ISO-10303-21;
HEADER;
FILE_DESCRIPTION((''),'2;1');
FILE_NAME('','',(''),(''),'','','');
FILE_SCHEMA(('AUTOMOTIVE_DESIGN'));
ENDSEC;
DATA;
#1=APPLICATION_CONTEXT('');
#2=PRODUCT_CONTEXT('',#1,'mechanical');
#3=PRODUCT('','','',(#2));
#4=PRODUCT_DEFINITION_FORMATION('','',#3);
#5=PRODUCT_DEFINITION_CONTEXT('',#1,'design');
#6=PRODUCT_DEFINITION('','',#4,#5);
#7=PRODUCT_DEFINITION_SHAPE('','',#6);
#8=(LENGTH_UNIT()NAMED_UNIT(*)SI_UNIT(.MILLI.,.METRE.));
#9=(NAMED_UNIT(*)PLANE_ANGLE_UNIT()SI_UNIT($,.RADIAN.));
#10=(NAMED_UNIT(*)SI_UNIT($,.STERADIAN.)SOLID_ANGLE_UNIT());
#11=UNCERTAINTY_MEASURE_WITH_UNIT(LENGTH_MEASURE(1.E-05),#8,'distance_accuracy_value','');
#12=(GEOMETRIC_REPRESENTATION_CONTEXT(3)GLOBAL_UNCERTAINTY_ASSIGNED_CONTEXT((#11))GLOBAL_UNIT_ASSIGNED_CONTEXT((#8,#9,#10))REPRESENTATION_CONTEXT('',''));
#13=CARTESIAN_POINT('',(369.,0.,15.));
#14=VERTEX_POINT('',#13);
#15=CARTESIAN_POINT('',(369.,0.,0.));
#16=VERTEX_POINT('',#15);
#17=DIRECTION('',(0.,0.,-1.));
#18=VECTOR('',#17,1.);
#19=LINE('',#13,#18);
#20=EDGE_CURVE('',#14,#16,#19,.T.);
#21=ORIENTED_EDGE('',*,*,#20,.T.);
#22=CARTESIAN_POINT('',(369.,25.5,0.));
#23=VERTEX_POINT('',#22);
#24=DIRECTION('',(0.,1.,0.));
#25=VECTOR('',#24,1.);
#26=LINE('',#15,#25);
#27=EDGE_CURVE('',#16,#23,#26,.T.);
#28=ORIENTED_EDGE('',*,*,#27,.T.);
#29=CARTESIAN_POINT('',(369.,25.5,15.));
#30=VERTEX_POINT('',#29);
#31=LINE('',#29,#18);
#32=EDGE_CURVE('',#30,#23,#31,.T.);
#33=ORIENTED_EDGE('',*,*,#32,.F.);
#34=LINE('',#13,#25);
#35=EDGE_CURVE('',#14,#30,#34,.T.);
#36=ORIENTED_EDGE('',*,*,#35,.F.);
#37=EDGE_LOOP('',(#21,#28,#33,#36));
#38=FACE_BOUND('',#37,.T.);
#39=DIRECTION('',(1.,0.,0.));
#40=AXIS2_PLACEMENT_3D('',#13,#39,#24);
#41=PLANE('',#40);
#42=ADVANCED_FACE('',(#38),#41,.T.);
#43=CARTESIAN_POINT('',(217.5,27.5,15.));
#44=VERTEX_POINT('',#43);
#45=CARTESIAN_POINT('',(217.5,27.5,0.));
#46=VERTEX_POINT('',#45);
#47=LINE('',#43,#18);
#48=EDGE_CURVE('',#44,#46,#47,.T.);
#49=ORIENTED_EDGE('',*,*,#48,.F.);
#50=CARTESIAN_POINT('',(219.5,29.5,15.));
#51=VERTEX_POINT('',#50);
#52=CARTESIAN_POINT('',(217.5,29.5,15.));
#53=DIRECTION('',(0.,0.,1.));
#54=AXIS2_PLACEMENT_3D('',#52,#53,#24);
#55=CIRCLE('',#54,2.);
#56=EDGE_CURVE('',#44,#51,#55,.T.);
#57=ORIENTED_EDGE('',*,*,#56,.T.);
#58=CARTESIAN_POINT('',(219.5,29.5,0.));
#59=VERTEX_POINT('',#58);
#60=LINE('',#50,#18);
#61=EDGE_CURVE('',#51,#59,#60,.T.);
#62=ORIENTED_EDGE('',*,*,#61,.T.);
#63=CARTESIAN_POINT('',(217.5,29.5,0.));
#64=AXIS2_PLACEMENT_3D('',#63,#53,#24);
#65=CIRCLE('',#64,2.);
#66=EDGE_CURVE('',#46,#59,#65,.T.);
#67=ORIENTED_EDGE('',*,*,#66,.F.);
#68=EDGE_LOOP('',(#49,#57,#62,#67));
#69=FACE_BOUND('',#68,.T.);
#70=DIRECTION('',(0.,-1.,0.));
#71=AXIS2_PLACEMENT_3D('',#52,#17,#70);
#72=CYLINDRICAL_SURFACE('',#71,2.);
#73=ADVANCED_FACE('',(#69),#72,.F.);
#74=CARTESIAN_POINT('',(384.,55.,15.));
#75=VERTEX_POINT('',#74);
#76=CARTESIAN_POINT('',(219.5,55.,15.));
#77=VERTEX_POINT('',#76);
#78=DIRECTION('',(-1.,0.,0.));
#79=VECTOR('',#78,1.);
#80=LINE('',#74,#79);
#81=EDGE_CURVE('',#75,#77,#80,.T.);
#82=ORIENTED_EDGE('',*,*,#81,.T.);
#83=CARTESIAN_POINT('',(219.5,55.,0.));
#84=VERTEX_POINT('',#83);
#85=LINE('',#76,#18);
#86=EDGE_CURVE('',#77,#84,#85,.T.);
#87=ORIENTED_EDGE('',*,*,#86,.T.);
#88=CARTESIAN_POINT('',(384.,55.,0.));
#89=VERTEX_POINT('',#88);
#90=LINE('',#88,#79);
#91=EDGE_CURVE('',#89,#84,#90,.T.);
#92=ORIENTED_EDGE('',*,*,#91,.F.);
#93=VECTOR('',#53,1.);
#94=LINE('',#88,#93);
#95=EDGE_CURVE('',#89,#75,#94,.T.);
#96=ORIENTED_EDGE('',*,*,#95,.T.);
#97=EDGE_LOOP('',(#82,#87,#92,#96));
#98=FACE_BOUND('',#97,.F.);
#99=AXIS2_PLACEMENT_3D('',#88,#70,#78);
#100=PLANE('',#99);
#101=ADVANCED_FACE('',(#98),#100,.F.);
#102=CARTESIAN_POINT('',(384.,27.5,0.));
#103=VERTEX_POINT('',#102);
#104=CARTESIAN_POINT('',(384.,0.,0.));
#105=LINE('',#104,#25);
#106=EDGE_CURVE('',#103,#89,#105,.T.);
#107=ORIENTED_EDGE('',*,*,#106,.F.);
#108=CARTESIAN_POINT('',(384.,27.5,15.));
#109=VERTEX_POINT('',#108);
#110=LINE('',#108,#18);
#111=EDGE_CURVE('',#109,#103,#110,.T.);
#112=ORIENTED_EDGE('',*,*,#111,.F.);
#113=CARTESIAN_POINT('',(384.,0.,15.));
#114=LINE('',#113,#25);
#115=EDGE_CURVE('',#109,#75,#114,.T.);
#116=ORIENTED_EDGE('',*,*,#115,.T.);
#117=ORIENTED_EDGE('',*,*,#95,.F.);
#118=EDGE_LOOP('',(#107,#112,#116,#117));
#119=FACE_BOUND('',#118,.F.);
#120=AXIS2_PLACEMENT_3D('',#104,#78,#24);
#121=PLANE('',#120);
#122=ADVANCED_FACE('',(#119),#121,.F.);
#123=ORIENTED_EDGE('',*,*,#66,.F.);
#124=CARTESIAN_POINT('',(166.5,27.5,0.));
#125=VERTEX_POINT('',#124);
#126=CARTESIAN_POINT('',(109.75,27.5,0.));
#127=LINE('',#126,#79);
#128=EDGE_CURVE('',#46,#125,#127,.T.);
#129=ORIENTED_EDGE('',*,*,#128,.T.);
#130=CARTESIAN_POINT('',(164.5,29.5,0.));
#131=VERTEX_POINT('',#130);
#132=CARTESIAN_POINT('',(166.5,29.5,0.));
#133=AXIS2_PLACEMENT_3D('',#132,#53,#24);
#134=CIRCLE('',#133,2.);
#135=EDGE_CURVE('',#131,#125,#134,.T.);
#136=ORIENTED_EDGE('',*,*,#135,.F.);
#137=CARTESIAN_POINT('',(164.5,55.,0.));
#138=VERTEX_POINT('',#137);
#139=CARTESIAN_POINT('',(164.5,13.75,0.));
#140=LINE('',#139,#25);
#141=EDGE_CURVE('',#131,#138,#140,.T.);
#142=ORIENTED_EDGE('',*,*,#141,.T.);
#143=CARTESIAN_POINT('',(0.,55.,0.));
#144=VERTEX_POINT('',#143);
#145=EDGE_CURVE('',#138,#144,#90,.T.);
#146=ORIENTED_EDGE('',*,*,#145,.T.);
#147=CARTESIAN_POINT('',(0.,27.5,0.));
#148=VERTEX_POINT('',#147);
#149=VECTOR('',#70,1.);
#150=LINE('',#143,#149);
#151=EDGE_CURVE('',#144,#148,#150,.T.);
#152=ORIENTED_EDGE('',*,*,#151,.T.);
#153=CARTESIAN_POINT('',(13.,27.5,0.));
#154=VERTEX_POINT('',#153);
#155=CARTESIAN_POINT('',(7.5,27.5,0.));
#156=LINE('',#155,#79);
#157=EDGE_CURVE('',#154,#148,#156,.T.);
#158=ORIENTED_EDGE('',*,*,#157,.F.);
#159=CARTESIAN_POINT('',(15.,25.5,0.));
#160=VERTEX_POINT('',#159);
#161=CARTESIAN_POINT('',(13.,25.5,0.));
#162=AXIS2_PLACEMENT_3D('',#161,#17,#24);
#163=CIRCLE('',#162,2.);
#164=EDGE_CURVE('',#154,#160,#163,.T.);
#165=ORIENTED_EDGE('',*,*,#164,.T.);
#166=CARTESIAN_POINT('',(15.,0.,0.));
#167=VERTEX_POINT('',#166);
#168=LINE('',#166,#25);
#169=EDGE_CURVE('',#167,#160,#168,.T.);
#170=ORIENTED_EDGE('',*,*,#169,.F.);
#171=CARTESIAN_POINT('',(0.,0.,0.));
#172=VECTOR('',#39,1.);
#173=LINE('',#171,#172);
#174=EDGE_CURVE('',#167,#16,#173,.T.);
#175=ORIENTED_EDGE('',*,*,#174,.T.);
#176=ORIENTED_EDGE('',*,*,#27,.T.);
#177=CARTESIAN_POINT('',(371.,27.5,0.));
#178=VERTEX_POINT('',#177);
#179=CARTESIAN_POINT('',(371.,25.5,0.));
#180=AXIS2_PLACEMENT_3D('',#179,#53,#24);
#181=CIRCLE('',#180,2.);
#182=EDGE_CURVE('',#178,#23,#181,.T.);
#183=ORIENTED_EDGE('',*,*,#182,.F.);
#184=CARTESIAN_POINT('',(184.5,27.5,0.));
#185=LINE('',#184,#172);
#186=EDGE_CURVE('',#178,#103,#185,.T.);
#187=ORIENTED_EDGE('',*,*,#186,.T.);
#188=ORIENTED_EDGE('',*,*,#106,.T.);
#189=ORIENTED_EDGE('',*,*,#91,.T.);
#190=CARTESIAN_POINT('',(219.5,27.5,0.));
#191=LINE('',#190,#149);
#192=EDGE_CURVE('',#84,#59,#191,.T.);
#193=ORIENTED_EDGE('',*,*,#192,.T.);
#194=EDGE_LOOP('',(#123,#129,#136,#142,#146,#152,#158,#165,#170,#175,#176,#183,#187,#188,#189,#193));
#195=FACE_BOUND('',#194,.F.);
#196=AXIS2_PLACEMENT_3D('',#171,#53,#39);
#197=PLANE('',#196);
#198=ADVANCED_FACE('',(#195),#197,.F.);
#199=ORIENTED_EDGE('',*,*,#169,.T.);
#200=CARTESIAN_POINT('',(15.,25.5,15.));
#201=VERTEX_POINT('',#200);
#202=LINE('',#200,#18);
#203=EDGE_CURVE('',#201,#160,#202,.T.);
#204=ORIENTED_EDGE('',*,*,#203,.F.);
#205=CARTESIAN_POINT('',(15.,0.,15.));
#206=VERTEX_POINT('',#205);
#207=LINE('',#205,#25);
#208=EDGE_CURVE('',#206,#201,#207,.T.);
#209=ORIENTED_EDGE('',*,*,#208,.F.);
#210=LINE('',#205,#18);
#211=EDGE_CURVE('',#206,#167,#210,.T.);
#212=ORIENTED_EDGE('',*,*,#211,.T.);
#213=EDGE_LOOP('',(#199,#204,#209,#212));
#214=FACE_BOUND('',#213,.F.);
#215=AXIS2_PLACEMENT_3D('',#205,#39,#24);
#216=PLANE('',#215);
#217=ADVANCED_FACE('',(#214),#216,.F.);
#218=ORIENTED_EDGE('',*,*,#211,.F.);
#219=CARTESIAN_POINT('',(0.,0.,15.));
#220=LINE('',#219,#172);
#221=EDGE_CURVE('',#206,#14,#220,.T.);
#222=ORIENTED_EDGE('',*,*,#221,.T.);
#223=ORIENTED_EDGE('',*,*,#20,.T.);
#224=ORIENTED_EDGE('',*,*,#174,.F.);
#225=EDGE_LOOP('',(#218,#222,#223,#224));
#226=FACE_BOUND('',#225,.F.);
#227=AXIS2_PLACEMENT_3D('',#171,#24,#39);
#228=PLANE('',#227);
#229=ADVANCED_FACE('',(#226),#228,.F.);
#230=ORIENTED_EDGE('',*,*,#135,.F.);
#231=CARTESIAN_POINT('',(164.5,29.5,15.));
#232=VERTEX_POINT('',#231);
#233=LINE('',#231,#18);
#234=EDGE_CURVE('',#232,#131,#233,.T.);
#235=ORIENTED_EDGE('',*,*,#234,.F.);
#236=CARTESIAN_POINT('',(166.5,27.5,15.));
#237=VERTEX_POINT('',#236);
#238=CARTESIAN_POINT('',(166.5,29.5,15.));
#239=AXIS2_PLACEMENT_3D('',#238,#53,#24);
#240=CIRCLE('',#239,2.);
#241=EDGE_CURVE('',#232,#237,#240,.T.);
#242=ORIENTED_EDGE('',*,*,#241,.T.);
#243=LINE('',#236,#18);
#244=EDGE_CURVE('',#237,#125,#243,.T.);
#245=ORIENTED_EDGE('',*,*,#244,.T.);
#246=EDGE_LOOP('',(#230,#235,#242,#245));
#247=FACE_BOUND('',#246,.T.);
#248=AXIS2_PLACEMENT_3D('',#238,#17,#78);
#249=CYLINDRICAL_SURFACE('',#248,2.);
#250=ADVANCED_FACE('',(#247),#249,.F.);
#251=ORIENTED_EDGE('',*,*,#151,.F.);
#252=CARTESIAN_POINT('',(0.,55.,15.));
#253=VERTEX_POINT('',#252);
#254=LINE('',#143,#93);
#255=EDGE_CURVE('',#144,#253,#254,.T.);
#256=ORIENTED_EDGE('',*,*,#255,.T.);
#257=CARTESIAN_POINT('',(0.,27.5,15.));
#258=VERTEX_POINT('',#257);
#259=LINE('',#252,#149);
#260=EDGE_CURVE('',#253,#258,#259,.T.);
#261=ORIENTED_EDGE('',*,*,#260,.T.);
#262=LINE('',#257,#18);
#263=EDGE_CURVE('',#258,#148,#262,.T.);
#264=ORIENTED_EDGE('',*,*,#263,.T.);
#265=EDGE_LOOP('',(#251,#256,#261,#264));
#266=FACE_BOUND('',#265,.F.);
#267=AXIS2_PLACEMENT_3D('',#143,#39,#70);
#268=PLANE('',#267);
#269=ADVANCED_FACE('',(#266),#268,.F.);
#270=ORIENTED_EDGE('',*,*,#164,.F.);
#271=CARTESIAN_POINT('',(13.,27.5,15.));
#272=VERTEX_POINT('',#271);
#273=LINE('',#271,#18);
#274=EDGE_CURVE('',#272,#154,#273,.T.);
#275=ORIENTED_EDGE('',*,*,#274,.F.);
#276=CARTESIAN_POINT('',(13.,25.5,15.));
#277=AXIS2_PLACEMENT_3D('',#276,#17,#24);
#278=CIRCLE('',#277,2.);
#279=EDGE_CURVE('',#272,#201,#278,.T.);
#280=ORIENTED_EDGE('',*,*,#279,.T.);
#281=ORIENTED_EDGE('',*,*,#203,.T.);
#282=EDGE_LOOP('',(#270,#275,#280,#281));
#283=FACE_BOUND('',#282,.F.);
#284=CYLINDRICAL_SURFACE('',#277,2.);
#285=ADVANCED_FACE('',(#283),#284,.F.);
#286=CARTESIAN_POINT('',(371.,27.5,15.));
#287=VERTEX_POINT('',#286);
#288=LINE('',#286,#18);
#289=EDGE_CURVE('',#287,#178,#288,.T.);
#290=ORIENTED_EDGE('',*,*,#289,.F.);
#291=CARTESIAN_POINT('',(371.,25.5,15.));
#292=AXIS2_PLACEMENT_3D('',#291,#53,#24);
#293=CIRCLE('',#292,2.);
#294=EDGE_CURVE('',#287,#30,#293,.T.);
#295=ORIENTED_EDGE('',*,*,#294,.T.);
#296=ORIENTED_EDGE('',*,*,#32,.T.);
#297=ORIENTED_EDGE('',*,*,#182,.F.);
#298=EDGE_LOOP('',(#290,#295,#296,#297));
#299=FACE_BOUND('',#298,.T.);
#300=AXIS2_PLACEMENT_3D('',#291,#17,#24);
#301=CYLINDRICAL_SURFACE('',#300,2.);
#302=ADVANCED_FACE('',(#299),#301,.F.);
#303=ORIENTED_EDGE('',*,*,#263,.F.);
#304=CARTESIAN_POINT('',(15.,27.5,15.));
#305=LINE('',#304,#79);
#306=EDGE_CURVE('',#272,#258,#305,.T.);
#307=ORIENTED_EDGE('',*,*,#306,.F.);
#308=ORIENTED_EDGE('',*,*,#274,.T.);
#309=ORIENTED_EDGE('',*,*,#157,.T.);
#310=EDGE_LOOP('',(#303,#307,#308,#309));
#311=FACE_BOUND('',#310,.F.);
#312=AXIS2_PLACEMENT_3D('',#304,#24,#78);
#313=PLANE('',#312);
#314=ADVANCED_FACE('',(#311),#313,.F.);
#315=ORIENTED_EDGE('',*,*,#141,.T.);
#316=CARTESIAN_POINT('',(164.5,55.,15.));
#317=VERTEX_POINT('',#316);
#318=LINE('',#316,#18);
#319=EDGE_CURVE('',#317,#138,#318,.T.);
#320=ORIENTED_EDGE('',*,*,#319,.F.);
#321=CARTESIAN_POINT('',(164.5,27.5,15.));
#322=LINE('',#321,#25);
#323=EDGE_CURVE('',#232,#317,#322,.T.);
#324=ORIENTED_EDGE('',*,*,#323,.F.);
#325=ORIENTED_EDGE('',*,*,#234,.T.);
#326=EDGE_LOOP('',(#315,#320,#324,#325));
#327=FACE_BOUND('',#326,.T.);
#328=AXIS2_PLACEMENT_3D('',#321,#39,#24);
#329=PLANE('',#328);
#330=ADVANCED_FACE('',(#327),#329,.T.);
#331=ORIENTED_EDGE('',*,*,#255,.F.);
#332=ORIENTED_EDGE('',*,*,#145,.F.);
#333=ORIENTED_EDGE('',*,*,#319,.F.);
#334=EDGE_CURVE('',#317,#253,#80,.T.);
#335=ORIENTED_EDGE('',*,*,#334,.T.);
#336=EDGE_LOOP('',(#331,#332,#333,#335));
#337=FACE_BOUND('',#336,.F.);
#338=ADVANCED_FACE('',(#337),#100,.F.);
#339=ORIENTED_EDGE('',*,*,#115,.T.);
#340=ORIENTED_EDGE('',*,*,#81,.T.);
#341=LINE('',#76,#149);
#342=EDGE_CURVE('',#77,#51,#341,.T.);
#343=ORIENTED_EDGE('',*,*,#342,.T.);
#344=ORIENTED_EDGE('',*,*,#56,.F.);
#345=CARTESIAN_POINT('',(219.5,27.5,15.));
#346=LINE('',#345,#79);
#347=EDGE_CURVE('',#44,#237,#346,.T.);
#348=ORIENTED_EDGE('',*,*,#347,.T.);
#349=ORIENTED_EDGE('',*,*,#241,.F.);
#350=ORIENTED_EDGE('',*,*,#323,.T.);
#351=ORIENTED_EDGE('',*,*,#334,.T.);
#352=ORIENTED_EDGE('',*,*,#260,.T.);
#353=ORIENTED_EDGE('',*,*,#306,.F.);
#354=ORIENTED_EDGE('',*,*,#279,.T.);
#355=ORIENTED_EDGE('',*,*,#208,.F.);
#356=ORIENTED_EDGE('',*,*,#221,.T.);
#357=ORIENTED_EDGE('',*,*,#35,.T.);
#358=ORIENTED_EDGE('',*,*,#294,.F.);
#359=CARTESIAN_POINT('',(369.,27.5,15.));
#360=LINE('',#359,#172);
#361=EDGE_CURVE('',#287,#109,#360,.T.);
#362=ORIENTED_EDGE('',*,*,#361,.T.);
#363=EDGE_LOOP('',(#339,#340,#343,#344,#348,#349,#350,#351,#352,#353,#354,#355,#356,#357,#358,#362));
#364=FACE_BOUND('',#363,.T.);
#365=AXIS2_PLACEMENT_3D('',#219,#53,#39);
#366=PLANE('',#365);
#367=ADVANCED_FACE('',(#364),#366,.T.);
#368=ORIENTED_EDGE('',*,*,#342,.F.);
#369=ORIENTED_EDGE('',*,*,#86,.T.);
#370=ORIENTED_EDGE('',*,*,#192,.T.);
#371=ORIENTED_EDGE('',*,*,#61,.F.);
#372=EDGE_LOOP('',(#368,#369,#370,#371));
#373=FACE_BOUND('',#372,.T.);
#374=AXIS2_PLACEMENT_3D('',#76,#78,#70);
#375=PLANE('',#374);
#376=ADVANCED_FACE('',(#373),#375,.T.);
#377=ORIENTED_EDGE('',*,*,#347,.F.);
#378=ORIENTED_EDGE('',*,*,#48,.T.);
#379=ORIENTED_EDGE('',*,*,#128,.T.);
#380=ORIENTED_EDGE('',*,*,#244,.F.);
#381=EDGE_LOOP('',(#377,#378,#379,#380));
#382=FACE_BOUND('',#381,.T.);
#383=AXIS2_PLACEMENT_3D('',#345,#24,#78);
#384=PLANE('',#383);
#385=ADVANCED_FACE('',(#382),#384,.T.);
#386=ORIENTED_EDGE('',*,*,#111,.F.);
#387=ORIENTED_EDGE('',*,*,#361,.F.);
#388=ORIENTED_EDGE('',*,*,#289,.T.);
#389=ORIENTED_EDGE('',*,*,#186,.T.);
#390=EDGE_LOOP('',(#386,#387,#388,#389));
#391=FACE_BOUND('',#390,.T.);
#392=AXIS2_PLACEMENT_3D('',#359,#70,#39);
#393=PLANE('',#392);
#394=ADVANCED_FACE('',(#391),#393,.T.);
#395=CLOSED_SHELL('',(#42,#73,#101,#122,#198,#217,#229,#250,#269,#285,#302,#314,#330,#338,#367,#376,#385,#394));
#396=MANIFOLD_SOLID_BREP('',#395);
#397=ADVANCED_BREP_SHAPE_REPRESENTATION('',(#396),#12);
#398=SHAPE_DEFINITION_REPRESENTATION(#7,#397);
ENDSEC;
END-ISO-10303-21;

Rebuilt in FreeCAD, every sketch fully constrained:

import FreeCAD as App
import Part
import Sketcher


def edges_at(feature, points):
    """Names of the edges that pass closest to the given points."""
    edges = feature.Shape.Edges
    near = lambda p: min(range(len(edges)), key=lambda i: edges[i].distToShape(Part.Vertex(*p))[0])
    return sorted({f"Edge{near(p) + 1}" for p in points})


def add_polygon(sketch, points):
    """Adds a closed chain of lines whose ends are joined by coincident constraints."""
    first, n = sketch.GeometryCount, len(points)
    for a, b in zip(points, points[1:] + points[:1]):
        sketch.addGeometry(Part.LineSegment(App.Vector(*a, 0), App.Vector(*b, 0)), False)
    for i in range(n):
        sketch.addConstraint(Sketcher.Constraint("Coincident", first + i, 2, first + (i + 1) % n, 1))

doc = App.newDocument("Part")
body = doc.addObject("PartDesign::Body", "Body")

# Sketch on XY plane
sketch1 = body.newObject("Sketcher::SketchObject", "Sketch")
sketch1.AttachmentSupport = (doc.getObject("XY_Plane"), [""])
sketch1.MapMode = "FlatFace"
add_polygon(sketch1, [(0, 55), (0, 0), (384, 0), (384, 55)])  # lines 0-3
sketch1.addConstraint([
    Sketcher.Constraint("Vertical", 0),
    Sketcher.Constraint("Horizontal", 1),
    Sketcher.Constraint("Vertical", 2),
    Sketcher.Constraint("Horizontal", 3),
    Sketcher.Constraint("Coincident", 0, 2, -1, 1),
    Sketcher.Constraint("DistanceX", 1, 1, 1, 2, 384.0),
    Sketcher.Constraint("DistanceY", 0, 2, 0, 1, 55.0),
])
pad1 = body.newObject("PartDesign::Pad", "Pad")
pad1.Profile = sketch1
pad1.Length = 15

# Sketch on XY plane
sketch2 = body.newObject("Sketcher::SketchObject", "Sketch001")
sketch2.AttachmentSupport = (doc.getObject("XY_Plane"), [""])
sketch2.MapMode = "FlatFace"
sketch2.AttachmentOffset = App.Placement(App.Vector(0, 0, 15), App.Rotation())
add_polygon(sketch2, [(0, 27.5), (0, 0), (15, 0), (15, 27.5)])  # lines 0-3
add_polygon(sketch2, [(219.5, 27.5), (219.5, 55), (164.5, 55), (164.5, 27.5)])  # lines 4-7
add_polygon(sketch2, [(369, 0), (384, 0), (384, 27.5), (369, 27.5)])  # lines 8-11
sketch2.addConstraint([
    Sketcher.Constraint("Vertical", 0),
    Sketcher.Constraint("Horizontal", 1),
    Sketcher.Constraint("Vertical", 2),
    Sketcher.Constraint("Horizontal", 3),
    Sketcher.Constraint("Vertical", 4),
    Sketcher.Constraint("Horizontal", 5),
    Sketcher.Constraint("Vertical", 6),
    Sketcher.Constraint("Horizontal", 7),
    Sketcher.Constraint("Horizontal", 8),
    Sketcher.Constraint("Vertical", 9),
    Sketcher.Constraint("Horizontal", 10),
    Sketcher.Constraint("Vertical", 11),
    Sketcher.Constraint("Coincident", 0, 2, -1, 1),
    Sketcher.Constraint("PointOnObject", 8, 2, -1),
    Sketcher.Constraint("Horizontal", 3, 2, 6, 2),
    Sketcher.Constraint("Horizontal", 7, 2, 9, 2),
    Sketcher.Constraint("Equal", 3, 8),
    Sketcher.Constraint("Equal", 2, 4),
    Sketcher.Constraint("DistanceX", 1, 1, 1, 2, 15.0),
    Sketcher.Constraint("DistanceX", 5, 2, 5, 1, 55.0),
    Sketcher.Constraint("DistanceY", 0, 2, 0, 1, 27.5),
    Sketcher.Constraint("DistanceX", -1, 1, 8, 2, 384.0),
    Sketcher.Constraint("DistanceX", -1, 1, 4, 2, 219.5),
])
pocket1 = body.newObject("PartDesign::Pocket", "Pocket")
pocket1.Profile = sketch2
pocket1.Type = "ThroughAll"
doc.recompute()

fillet = body.newObject("PartDesign::Fillet", "Fillet")
fillet.Base = (pocket1, edges_at(pocket1, [
    (15, 27.5, 7.5),
    (164.5, 27.5, 7.5),
    (219.5, 27.5, 7.5),
    (369, 27.5, 7.5),
]))
fillet.Radius = 2

doc.recompute()
